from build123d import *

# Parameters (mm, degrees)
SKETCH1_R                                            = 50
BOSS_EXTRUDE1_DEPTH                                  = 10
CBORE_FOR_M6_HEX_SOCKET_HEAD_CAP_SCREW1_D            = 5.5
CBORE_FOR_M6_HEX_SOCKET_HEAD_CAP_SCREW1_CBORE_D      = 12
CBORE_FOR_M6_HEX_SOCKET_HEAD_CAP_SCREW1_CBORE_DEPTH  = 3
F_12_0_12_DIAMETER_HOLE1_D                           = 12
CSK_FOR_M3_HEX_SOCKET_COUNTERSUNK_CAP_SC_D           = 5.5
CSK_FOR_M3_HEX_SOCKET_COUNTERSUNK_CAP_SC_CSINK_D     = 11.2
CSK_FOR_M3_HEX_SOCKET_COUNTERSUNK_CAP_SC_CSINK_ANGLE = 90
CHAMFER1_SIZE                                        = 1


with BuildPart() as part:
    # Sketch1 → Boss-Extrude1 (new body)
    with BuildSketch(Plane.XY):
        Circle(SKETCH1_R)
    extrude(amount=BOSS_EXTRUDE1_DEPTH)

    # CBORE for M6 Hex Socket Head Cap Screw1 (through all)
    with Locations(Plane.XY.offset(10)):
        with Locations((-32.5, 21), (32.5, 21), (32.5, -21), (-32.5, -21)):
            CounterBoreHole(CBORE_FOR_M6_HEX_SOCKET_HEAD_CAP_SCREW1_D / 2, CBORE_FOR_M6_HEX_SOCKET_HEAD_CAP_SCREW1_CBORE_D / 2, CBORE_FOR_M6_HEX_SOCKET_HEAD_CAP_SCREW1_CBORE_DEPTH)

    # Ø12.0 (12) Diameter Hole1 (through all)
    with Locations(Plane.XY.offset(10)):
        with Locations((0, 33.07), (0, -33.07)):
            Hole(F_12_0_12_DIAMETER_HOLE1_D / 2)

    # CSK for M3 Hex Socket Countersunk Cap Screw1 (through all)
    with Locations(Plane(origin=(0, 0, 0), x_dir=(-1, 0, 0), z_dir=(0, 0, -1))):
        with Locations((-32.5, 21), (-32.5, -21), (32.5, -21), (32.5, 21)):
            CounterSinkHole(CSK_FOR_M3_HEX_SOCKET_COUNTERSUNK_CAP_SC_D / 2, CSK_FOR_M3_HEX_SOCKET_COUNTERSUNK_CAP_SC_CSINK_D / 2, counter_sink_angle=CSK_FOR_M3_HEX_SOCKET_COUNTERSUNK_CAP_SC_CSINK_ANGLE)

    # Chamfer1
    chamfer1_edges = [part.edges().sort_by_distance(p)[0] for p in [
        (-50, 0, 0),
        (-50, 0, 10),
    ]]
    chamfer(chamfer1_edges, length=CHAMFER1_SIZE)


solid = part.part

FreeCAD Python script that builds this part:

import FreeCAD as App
import Part
import Sketcher
Q = App.Units.Quantity


def edges_at(feature, points):
    """Names of the edges that pass closest to the given points."""
    edges = feature.Shape.Edges
    near = lambda p: min(range(len(edges)), key=lambda i: edges[i].distToShape(Part.Vertex(*p))[0])
    return sorted({f"Edge{near(p) + 1}" for p in points})

doc = App.newDocument("Part")
params = doc.addObject("Spreadsheet::Sheet", "Params")
for row, (alias, value) in enumerate([
    ("sketch1_diameter", "100 mm"),
    ("pad1_length", "10 mm"),
    ("sketch2_diameter", "5.5 mm"),
    ("hole_diameter", "5.5 mm"),
    ("hole_cbore_diameter", "12 mm"),
    ("hole_cbore_depth", "3 mm"),
    ("sketch3_diameter", "12 mm"),
    ("hole2_diameter", "12 mm"),
    ("sketch4_diameter", "5.5 mm"),
    ("hole3_diameter", "5.5 mm"),
    ("hole3_csink_diameter", "11.2 mm"),
    ("chamfer_size", "1 mm"),
], start=1):
    params.set(f"A{row}", alias)
    params.set(f"B{row}", "=" + value)
    params.setAlias(f"B{row}", alias)

body = doc.addObject("PartDesign::Body", "Body")

sketch1 = doc.addObject("Sketcher::SketchObject", "Sketch")
body.addObject(sketch1)
sketch1.AttachmentSupport = (doc.XY_Plane, [""])
sketch1.MapMode = "FlatFace"
sketch1.addGeometry(Part.Circle(App.Vector(0, 0, 0), App.Vector(0, 0, 1), 50), False)
sketch1.addConstraint([
    Sketcher.Constraint("Coincident", 0, 3, -1, 1),
    Sketcher.Constraint("Diameter", 0, Q("100 mm")),
])
sketch1.setExpression("Constraints[1]", "Params.sketch1_diameter")
pad1 = doc.addObject("PartDesign::Pad", "Pad")
body.addObject(pad1)
pad1.Profile = sketch1
pad1.setExpression("Length", "Params.pad1_length")

sketch2 = doc.addObject("Sketcher::SketchObject", "Sketch001")
body.addObject(sketch2)
sketch2.AttachmentSupport = (doc.XY_Plane, [""])
sketch2.MapMode = "FlatFace"
sketch2.AttachmentOffset = App.Placement(App.Vector(0, 0, 10), App.Rotation())
sketch2.addGeometry([
    Part.Circle(App.Vector(-32.5, 21, 0), App.Vector(0, 0, 1), 2.8),
    Part.Circle(App.Vector(32.5, 21, 0), App.Vector(0, 0, 1), 2.8),
    Part.Circle(App.Vector(32.5, -21, 0), App.Vector(0, 0, 1), 2.8),
    Part.Circle(App.Vector(-32.5, -21, 0), App.Vector(0, 0, 1), 2.8),
], False)
sketch2.addConstraint([
    Sketcher.Constraint("Equal", 0, 1),
    Sketcher.Constraint("Equal", 1, 2),
    Sketcher.Constraint("Equal", 2, 3),
    Sketcher.Constraint("Symmetric", 0, 3, 2, 3, -1, 1),
    Sketcher.Constraint("Symmetric", 1, 3, 3, 3, -1, 1),
    Sketcher.Constraint("Symmetric", 0, 3, 1, 3, -2),
    Sketcher.Constraint("Diameter", 0, Q("5.5 mm")),
    Sketcher.Constraint("DistanceY", -1, 1, 0, 3, Q("21 mm")),
    Sketcher.Constraint("DistanceX", 0, 3, 1, 3, Q("65 mm")),
])
sketch2.setExpression("Constraints[6]", "Params.sketch2_diameter")
doc.recompute()
hole = doc.addObject("PartDesign::Hole", "Hole")
body.addObject(hole)
hole.Profile = sketch2
hole.ThreadType = "None"
hole.setExpression("Diameter", "Params.hole_diameter")
hole.DepthType = "ThroughAll"
hole.HoleCutType = "Counterbore"
hole.setExpression("HoleCutDiameter", "Params.hole_cbore_diameter")
hole.setExpression("HoleCutDepth", "Params.hole_cbore_depth")

sketch3 = doc.addObject("Sketcher::SketchObject", "Sketch002")
body.addObject(sketch3)
sketch3.AttachmentSupport = (doc.XY_Plane, [""])
sketch3.MapMode = "FlatFace"
sketch3.AttachmentOffset = App.Placement(App.Vector(0, 0, 10), App.Rotation())
sketch3.addGeometry([
    Part.Circle(App.Vector(0, 33, 0), App.Vector(0, 0, 1), 6),
    Part.Circle(App.Vector(0, -33, 0), App.Vector(0, 0, 1), 6),
], False)
sketch3.addConstraint([
    Sketcher.Constraint("Equal", 0, 1),
    Sketcher.Constraint("Symmetric", 0, 3, 1, 3, -1, 1),
    Sketcher.Constraint("PointOnObject", 0, 3, -2),
    Sketcher.Constraint("Diameter", 0, Q("12 mm")),
    Sketcher.Constraint("DistanceY", -1, 1, 0, 3, Q("33.07 mm")),
])
sketch3.setExpression("Constraints[3]", "Params.sketch3_diameter")
doc.recompute()
hole2 = doc.addObject("PartDesign::Hole", "Hole001")
body.addObject(hole2)
hole2.Profile = sketch3
hole2.ThreadType = "None"
hole2.setExpression("Diameter", "Params.hole2_diameter")
hole2.DepthType = "ThroughAll"

sketch4 = doc.addObject("Sketcher::SketchObject", "Sketch003")
body.addObject(sketch4)
sketch4.AttachmentSupport = (doc.XY_Plane, [""])
sketch4.MapMode = "FlatFace"
sketch4.addGeometry([
    Part.Circle(App.Vector(32.5, 21, 0), App.Vector(0, 0, 1), 2.8),
    Part.Circle(App.Vector(32.5, -21, 0), App.Vector(0, 0, 1), 2.8),
    Part.Circle(App.Vector(-32.5, -21, 0), App.Vector(0, 0, 1), 2.8),
    Part.Circle(App.Vector(-32.5, 21, 0), App.Vector(0, 0, 1), 2.8),
], False)
sketch4.addConstraint([
    Sketcher.Constraint("Equal", 0, 1),
    Sketcher.Constraint("Equal", 1, 2),
    Sketcher.Constraint("Equal", 2, 3),
    Sketcher.Constraint("Symmetric", 0, 3, 2, 3, -1, 1),
    Sketcher.Constraint("Symmetric", 1, 3, 3, 3, -1, 1),
    Sketcher.Constraint("Symmetric", 1, 3, 2, 3, -2),
    Sketcher.Constraint("Diameter", 0, Q("5.5 mm")),
    Sketcher.Constraint("DistanceY", -1, 1, 0, 3, Q("21 mm")),
    Sketcher.Constraint("DistanceX", 2, 3, 1, 3, Q("65 mm")),
])
sketch4.setExpression("Constraints[6]", "Params.sketch4_diameter")
doc.recompute()
hole3 = doc.addObject("PartDesign::Hole", "Hole002")
body.addObject(hole3)
hole3.Profile = sketch4
hole3.ThreadType = "None"
hole3.setExpression("Diameter", "Params.hole3_diameter")
hole3.DepthType = "ThroughAll"
hole3.HoleCutType = "Countersink"
hole3.setExpression("HoleCutDiameter", "Params.hole3_csink_diameter")
hole3.HoleCutCountersinkAngle = 90
hole3.Reversed = True
doc.recompute()

chamfer = doc.addObject("PartDesign::Chamfer", "Chamfer")
body.addObject(chamfer)
chamfer.Base = (hole3, edges_at(hole3, [(-50, 0, 0), (-50, 0, 10)]))
chamfer.setExpression("Size", "Params.chamfer_size")

doc.recompute()
